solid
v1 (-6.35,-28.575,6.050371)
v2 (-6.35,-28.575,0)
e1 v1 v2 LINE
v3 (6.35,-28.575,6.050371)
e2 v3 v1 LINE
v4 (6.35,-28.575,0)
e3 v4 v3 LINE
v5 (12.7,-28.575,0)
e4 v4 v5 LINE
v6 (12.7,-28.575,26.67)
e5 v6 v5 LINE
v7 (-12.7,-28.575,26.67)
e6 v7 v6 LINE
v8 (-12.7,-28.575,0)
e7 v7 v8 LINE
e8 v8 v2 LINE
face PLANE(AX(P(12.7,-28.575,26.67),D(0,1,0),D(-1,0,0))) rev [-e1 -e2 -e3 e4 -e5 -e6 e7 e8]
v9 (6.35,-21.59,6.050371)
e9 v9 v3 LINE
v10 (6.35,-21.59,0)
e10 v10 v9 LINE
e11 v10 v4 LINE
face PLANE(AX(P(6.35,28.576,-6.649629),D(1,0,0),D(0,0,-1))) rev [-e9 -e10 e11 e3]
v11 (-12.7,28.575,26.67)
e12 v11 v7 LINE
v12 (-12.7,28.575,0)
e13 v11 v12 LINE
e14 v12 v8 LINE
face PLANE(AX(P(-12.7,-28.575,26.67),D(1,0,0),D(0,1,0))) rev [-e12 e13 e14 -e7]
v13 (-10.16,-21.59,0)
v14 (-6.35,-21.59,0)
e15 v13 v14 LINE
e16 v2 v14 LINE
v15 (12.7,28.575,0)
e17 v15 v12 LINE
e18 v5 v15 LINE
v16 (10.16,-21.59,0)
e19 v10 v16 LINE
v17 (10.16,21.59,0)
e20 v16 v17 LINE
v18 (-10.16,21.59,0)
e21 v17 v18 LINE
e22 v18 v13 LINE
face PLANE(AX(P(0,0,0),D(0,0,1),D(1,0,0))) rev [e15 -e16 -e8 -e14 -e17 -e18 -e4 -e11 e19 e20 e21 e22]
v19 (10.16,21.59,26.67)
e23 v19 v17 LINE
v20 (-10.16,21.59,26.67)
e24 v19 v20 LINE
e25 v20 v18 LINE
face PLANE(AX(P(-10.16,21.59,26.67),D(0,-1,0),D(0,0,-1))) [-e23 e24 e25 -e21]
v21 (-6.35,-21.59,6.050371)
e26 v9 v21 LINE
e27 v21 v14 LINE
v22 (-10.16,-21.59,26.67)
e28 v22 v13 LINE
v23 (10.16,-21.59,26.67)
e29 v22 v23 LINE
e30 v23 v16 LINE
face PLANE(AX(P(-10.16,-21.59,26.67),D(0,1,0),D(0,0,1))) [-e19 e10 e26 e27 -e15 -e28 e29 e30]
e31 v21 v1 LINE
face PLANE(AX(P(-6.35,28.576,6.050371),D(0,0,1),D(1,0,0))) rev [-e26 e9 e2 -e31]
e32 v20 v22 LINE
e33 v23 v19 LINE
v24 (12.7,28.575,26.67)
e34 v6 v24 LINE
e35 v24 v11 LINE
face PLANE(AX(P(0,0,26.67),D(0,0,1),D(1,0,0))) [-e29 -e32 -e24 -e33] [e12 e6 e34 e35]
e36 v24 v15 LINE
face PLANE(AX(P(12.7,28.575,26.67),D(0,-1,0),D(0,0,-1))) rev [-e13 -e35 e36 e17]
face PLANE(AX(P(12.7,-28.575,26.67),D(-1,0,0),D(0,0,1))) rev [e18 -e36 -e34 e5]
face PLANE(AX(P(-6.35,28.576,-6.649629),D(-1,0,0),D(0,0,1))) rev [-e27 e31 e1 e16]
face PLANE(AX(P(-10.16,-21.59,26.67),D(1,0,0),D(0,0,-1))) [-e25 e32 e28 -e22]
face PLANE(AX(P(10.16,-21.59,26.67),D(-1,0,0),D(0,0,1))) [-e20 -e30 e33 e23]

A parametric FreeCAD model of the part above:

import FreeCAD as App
import Part
import Sketcher
from FreeCAD import Vector
Q = App.Units.Quantity

doc = App.newDocument("Part")
body = doc.addObject("PartDesign::Body", "Body")

# Sketch on XY plane
sketch1 = doc.addObject("Sketcher::SketchObject", "Sketch")
body.addObject(sketch1)
sketch1.AttachmentSupport = (doc.XY_Plane, [""])
sketch1.MapMode = "FlatFace"
sketch1.addGeometry([
    Part.LineSegment(Vector(-13, 29, 0), Vector(-13, -29, 0)),  # 0
    Part.LineSegment(Vector(-13, -29, 0), Vector(13, -29, 0)),  # 1
    Part.LineSegment(Vector(13, -29, 0), Vector(13, 29, 0)),  # 2
    Part.LineSegment(Vector(13, 29, 0), Vector(-13, 29, 0)),  # 3
    Part.LineSegment(Vector(10, -22, 0), Vector(-10, -22, 0)),  # 4
    Part.LineSegment(Vector(-10, -22, 0), Vector(-10, 22, 0)),  # 5
    Part.LineSegment(Vector(-10, 22, 0), Vector(10, 22, 0)),  # 6
    Part.LineSegment(Vector(10, 22, 0), Vector(10, -22, 0)),  # 7
], False)
sketch1.addConstraint([
    Sketcher.Constraint("Coincident", 0, 2, 1, 1),
    Sketcher.Constraint("Coincident", 1, 2, 2, 1),
    Sketcher.Constraint("Coincident", 2, 2, 3, 1),
    Sketcher.Constraint("Coincident", 3, 2, 0, 1),
    Sketcher.Constraint("Coincident", 4, 2, 5, 1),
    Sketcher.Constraint("Coincident", 5, 2, 6, 1),
    Sketcher.Constraint("Coincident", 6, 2, 7, 1),
    Sketcher.Constraint("Coincident", 7, 2, 4, 1),
    Sketcher.Constraint("Vertical", 0),
    Sketcher.Constraint("Horizontal", 1),
    Sketcher.Constraint("Vertical", 2),
    Sketcher.Constraint("Horizontal", 3),
    Sketcher.Constraint("Horizontal", 4),
    Sketcher.Constraint("Vertical", 5),
    Sketcher.Constraint("Horizontal", 6),
    Sketcher.Constraint("Vertical", 7),
    Sketcher.Constraint("Symmetric", 0, 2, 2, 2, -1, 1),
    Sketcher.Constraint("Symmetric", 4, 2, 6, 2, -1, 1),
    Sketcher.Constraint("DistanceX", 1, 1, 1, 2, Q("1 in")),
    Sketcher.Constraint("DistanceX", 4, 2, 4, 1, Q("0.8 in")),
    Sketcher.Constraint("DistanceY", 5, 1, 5, 2, Q("1.7 in")),
    Sketcher.Constraint("DistanceY", 0, 2, 0, 1, Q("2.25 in")),
])
pad1 = doc.addObject("PartDesign::Pad", "Pad")
body.addObject(pad1)
pad1.Profile = sketch1
pad1.Length = Q("1.05 in")

# Sketch on XZ plane
sketch2 = doc.addObject("Sketcher::SketchObject", "Sketch001")
body.addObject(sketch2)
sketch2.AttachmentSupport = (doc.XZ_Plane, [""])
sketch2.MapMode = "FlatFace"
sketch2.AttachmentOffset = App.Placement(Vector(0, 0, 1.125 * 25.4), App.Rotation())
sketch2.addGeometry([
    Part.LineSegment(Vector(-6, 6, 0), Vector(-6, -7, 0)),
    Part.LineSegment(Vector(-6, -7, 0), Vector(6, -7, 0)),
    Part.LineSegment(Vector(6, -7, 0), Vector(6, 6, 0)),
    Part.LineSegment(Vector(6, 6, 0), Vector(-6, 6, 0)),
], False)
sketch2.addConstraint([
    Sketcher.Constraint("Coincident", 0, 2, 1, 1),
    Sketcher.Constraint("Coincident", 1, 2, 2, 1),
    Sketcher.Constraint("Coincident", 2, 2, 3, 1),
    Sketcher.Constraint("Coincident", 3, 2, 0, 1),
    Sketcher.Constraint("Vertical", 0),
    Sketcher.Constraint("Horizontal", 1),
    Sketcher.Constraint("Vertical", 2),
    Sketcher.Constraint("Horizontal", 3),
    Sketcher.Constraint("Equal", 3, 0),
    Sketcher.Constraint("DistanceX", 1, 1, 1, 2, Q("0.5 in")),
    Sketcher.Constraint("DistanceX", 0, 2, -1, 1, Q("0.25 in")),
    Sketcher.Constraint("DistanceY", 0, 2, -1, 1, Q("6.649629 mm")),
])
pocket1 = doc.addObject("PartDesign::Pocket", "Pocket")
body.addObject(pocket1)
pocket1.Profile = sketch2
pocket1.Length = Q("0.275 in")

doc.recompute()
